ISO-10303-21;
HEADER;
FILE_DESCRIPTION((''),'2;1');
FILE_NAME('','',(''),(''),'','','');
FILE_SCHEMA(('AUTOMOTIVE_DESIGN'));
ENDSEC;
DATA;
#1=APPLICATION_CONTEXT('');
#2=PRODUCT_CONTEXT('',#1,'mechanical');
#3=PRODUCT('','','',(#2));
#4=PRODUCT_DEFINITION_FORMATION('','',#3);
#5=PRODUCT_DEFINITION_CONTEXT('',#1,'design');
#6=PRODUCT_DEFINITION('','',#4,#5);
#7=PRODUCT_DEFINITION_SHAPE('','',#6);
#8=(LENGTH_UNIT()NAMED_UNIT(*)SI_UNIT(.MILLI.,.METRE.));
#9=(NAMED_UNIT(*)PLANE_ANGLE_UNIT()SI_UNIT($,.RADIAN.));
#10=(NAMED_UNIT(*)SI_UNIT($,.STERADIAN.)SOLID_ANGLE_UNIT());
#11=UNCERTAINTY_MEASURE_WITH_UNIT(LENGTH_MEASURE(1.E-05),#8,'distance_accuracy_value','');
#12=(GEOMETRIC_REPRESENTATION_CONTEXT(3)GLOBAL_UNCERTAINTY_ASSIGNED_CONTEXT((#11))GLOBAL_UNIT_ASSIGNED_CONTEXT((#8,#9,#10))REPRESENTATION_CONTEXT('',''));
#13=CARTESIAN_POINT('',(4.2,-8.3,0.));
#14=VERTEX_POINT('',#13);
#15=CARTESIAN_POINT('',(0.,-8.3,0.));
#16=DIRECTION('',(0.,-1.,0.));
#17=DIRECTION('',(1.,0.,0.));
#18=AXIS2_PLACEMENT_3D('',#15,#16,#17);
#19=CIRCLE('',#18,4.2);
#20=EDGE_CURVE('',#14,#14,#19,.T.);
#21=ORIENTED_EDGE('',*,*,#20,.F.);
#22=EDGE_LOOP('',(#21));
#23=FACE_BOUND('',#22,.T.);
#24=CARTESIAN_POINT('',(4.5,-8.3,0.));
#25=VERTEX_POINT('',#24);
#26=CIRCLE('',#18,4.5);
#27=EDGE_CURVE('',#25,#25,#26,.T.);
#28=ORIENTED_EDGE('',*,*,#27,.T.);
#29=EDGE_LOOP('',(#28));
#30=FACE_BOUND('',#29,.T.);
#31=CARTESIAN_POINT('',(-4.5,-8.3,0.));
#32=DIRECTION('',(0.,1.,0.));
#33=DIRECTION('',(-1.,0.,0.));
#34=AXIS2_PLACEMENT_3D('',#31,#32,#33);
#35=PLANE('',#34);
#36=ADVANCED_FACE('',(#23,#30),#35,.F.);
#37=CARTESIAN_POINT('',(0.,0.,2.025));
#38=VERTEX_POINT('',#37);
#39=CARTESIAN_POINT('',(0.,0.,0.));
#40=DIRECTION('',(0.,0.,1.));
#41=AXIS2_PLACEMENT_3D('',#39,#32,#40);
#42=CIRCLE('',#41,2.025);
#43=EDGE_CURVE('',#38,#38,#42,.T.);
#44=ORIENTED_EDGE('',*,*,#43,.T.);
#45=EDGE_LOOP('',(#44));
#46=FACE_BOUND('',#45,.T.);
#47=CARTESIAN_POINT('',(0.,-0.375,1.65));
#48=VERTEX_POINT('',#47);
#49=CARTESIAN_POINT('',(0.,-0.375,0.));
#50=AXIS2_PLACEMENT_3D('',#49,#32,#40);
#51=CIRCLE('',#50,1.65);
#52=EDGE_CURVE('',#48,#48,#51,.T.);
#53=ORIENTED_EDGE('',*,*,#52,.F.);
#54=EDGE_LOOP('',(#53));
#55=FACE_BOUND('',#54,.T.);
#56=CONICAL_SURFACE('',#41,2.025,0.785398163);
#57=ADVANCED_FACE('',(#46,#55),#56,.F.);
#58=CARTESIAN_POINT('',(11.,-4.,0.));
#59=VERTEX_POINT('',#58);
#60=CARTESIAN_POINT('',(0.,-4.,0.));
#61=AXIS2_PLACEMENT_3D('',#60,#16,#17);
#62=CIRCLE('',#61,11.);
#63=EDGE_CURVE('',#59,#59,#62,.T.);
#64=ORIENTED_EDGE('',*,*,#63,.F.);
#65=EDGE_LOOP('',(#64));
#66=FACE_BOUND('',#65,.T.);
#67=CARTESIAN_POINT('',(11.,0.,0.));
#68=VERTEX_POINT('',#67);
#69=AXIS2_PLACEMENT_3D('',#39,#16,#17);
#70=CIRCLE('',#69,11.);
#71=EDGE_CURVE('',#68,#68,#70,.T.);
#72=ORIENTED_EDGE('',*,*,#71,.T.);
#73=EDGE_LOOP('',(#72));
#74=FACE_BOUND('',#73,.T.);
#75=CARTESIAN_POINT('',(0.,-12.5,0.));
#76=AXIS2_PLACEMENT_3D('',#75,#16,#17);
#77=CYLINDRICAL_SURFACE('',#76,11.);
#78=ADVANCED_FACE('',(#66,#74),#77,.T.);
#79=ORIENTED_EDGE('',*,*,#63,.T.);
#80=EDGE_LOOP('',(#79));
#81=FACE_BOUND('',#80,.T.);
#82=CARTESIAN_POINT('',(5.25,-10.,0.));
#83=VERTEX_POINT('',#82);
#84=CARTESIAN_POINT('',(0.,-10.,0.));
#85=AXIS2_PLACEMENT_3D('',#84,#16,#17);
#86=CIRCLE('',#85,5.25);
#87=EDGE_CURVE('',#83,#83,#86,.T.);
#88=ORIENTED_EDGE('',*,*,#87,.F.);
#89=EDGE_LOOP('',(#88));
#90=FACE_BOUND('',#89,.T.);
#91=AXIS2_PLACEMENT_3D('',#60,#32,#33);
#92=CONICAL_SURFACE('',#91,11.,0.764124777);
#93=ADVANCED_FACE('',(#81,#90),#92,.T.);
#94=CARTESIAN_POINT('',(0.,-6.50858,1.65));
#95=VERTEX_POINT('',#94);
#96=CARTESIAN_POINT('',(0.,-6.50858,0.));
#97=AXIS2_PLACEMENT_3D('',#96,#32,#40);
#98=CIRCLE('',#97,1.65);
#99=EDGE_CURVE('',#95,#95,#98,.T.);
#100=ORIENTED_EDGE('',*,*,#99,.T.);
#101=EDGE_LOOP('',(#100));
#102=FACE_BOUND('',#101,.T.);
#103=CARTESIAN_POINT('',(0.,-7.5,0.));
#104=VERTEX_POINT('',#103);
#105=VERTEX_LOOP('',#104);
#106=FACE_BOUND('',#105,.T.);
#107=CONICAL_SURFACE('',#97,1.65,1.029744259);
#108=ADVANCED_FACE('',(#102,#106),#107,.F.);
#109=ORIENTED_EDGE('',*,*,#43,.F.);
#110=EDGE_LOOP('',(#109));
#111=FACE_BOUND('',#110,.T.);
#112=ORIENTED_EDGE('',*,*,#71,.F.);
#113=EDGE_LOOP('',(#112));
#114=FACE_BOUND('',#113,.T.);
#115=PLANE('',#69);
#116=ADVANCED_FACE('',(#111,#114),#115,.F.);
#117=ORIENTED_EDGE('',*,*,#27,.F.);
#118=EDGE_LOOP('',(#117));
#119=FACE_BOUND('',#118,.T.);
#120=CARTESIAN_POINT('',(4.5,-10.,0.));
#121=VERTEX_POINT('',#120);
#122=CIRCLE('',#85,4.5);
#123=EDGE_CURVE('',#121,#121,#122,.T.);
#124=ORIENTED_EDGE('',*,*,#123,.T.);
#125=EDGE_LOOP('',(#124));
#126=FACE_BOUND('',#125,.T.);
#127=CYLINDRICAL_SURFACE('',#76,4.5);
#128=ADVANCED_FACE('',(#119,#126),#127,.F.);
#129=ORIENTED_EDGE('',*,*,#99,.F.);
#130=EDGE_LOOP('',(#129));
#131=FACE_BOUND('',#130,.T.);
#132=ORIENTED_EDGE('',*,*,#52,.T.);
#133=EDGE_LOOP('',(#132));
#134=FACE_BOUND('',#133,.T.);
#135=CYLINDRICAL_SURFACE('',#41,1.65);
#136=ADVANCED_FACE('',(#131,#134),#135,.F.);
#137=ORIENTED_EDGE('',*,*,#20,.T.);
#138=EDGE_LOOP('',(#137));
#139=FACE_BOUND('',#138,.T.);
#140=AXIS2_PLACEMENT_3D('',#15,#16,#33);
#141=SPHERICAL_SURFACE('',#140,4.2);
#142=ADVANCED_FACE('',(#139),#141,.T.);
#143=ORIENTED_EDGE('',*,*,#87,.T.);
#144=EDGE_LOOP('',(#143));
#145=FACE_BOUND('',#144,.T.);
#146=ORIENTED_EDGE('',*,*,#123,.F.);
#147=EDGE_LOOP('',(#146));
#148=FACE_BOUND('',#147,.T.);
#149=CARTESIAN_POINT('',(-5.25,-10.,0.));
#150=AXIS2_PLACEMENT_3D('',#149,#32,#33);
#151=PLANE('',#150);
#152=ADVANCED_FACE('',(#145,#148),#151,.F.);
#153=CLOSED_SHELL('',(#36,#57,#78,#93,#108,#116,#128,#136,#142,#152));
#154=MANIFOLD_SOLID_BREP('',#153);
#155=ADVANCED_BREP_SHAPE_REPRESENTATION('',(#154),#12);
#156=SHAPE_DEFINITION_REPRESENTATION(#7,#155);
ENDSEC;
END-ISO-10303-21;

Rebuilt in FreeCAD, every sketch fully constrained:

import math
import FreeCAD as App
import Part
import Sketcher

V = App.Vector

doc = App.newDocument("Part")
body = doc.addObject("PartDesign::Body", "Body")

# Sketch on XY plane
sketch1 = body.newObject("Sketcher::SketchObject", "Sketch")
sketch1.AttachmentSupport = (doc.getObject("XY_Plane"), [""])
sketch1.MapMode = "FlatFace"
sketch1.addGeometry(Part.LineSegment(V(0, 0, 0), V(-11, 0, 0)), False)
sketch1.addGeometry(Part.LineSegment(V(-11, 0, 0), V(-11, -4, 0)), False)
sketch1.addGeometry(Part.LineSegment(V(-11, -4, 0), V(-5.25, -10, 0)), False)
sketch1.addGeometry(Part.LineSegment(V(-5.25, -10, 0), V(-4.5, -10, 0)), False)
sketch1.addGeometry(Part.LineSegment(V(-4.5, -10, 0), V(-4.5, -8.3, 0)), False)
sketch1.addGeometry(Part.LineSegment(V(-4.5, -8.3, 0), V(-4.2, -8.3, 0)), False)
sketch1.addGeometry(Part.ArcOfCircle(Part.Circle(V(0, -8.3, 0), V(0, 0, 1), 4.2), math.radians(180), math.radians(270)), False)
sketch1.addGeometry(Part.LineSegment(V(0, -12.5, 0), V(0, 0, 0)), False)
sketch1.addConstraint(Sketcher.Constraint("Coincident", 0, 2, 1, 1))
sketch1.addConstraint(Sketcher.Constraint("Coincident", 1, 2, 2, 1))
sketch1.addConstraint(Sketcher.Constraint("Coincident", 2, 2, 3, 1))
sketch1.addConstraint(Sketcher.Constraint("Coincident", 3, 2, 4, 1))
sketch1.addConstraint(Sketcher.Constraint("Coincident", 4, 2, 5, 1))
sketch1.addConstraint(Sketcher.Constraint("Coincident", 5, 2, 6, 1))
sketch1.addConstraint(Sketcher.Constraint("Coincident", 6, 2, 7, 1))
sketch1.addConstraint(Sketcher.Constraint("Coincident", 7, 2, 0, 1))
sketch1.addConstraint(Sketcher.Constraint("Horizontal", 0))
sketch1.addConstraint(Sketcher.Constraint("Vertical", 1))
sketch1.addConstraint(Sketcher.Constraint("Horizontal", 3))
sketch1.addConstraint(Sketcher.Constraint("Vertical", 4))
sketch1.addConstraint(Sketcher.Constraint("Horizontal", 5))
sketch1.addConstraint(Sketcher.Constraint("Vertical", 7))
sketch1.addConstraint(Sketcher.Constraint("Coincident", 7, 2, -1, 1))
sketch1.addConstraint(Sketcher.Constraint("PointOnObject", 6, 3, -2))
sketch1.addConstraint(Sketcher.Constraint("Horizontal", 6, 3, 4, 2))
sketch1.addConstraint(Sketcher.Constraint("Radius", 6, 4.2))
sketch1.addConstraint(Sketcher.Constraint("DistanceX", 0, 2, 0, 1, 11.0))
sketch1.addConstraint(Sketcher.Constraint("DistanceY", 1, 2, 1, 1, 4.0))
sketch1.addConstraint(Sketcher.Constraint("DistanceX", 5, 1, 5, 2, 0.3))
sketch1.addConstraint(Sketcher.Constraint("DistanceY", 4, 1, 4, 2, 1.7))
sketch1.addConstraint(Sketcher.Constraint("DistanceY", 7, 1, 7, 2, 12.5))
sketch1.addConstraint(Sketcher.Constraint("DistanceX", 3, 1, 3, 2, 0.75))
revolution = body.newObject("PartDesign::Revolution", "Revolution")
revolution.Profile = sketch1
revolution.ReferenceAxis = (sketch1, ["V_Axis"])
revolution.Angle = 360

# Sketch on XZ plane
sketch2 = body.newObject("Sketcher::SketchObject", "Sketch001")
sketch2.AttachmentSupport = (doc.getObject("XZ_Plane"), [""])
sketch2.MapMode = "FlatFace"
sketch2.addGeometry(Part.Circle(V(0, 0, 0), V(0, 0, 1), 1.6), False)
sketch2.addConstraint(Sketcher.Constraint("Coincident", 0, 3, -1, 1))
sketch2.addConstraint(Sketcher.Constraint("Diameter", 0, 3.3))
doc.recompute()
hole = body.newObject("PartDesign::Hole", "Hole")
hole.Profile = sketch2
hole.ThreadType = "None"
hole.Diameter = 3.3
hole.DepthType = "Dimension"
hole.Depth = 6.50858
hole.DrillPoint = "Angled"
hole.DrillPointAngle = 118
hole.HoleCutType = "Countersink"
hole.HoleCutDiameter = 4.05
hole.HoleCutCountersinkAngle = 90
hole.Reversed = True

doc.recompute()
